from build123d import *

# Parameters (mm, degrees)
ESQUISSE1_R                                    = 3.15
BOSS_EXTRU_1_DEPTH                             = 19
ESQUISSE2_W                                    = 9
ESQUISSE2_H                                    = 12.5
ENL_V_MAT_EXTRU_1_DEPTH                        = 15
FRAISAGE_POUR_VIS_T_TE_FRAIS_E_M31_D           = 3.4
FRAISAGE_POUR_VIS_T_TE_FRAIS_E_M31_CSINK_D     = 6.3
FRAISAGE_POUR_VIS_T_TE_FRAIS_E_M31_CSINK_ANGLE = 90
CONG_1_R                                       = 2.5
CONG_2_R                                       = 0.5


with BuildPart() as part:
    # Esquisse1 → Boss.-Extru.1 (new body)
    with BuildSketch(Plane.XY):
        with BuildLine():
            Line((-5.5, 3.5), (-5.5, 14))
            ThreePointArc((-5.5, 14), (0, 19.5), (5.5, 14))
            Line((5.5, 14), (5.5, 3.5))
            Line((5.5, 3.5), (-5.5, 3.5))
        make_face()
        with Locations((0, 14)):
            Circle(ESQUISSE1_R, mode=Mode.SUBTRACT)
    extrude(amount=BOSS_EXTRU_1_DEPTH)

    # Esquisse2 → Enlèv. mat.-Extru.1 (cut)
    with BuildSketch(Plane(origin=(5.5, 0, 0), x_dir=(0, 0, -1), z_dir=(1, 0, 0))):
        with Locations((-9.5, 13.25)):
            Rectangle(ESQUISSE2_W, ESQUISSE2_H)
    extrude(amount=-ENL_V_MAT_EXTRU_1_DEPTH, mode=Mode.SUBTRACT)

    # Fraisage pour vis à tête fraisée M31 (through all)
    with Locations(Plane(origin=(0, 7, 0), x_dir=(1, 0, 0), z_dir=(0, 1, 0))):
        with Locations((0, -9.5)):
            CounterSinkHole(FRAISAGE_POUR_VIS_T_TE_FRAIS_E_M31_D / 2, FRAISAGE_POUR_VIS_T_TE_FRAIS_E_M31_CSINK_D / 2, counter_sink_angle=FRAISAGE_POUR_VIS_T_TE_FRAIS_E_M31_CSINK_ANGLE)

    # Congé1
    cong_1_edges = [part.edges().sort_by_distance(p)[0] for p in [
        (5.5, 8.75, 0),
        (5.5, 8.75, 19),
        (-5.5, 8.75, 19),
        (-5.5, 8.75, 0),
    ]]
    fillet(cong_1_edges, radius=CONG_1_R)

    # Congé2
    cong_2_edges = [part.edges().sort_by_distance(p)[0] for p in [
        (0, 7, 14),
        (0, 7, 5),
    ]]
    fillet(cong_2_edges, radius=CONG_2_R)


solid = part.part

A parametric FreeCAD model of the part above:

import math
import FreeCAD as App
import Part
import Sketcher


def edges_at(feature, points):
    """Names of the edges that pass closest to the given points."""
    edges = feature.Shape.Edges
    near = lambda p: min(range(len(edges)), key=lambda i: edges[i].distToShape(Part.Vertex(*p))[0])
    return sorted({f"Edge{near(p) + 1}" for p in points})


def add_polygon(sketch, points):
    """Adds a closed chain of lines whose ends are joined by coincident constraints."""
    first, n = sketch.GeometryCount, len(points)
    for a, b in zip(points, points[1:] + points[:1]):
        sketch.addGeometry(Part.LineSegment(App.Vector(*a, 0), App.Vector(*b, 0)), False)
    for i in range(n):
        sketch.addConstraint(Sketcher.Constraint("Coincident", first + i, 2, first + (i + 1) % n, 1))

doc = App.newDocument("Part")
body = doc.addObject("PartDesign::Body", "Body")

sketch1 = body.newObject("Sketcher::SketchObject", "Sketch")
sketch1.AttachmentSupport = (doc.getObject("XY_Plane"), [""])
sketch1.MapMode = "FlatFace"
sketch1.addGeometry([
    Part.LineSegment(App.Vector(-5.5, 14, 0), App.Vector(-5.5, 3.5, 0)),
    Part.LineSegment(App.Vector(-5.5, 3.5, 0), App.Vector(5.5, 3.5, 0)),
    Part.LineSegment(App.Vector(5.5, 3.5, 0), App.Vector(5.5, 14, 0)),
    Part.ArcOfCircle(Part.Circle(App.Vector(0, 14, 0), App.Vector(0, 0, 1), 5.5), math.radians(0), math.radians(180)),
    Part.Circle(App.Vector(0, 14, 0), App.Vector(0, 0, 1), 3.1),
], False)
sketch1.addConstraint([
    Sketcher.Constraint("Coincident", 0, 2, 1, 1),
    Sketcher.Constraint("Coincident", 1, 2, 2, 1),
    Sketcher.Constraint("Tangent", 2, 2, 3, 1),
    Sketcher.Constraint("Tangent", 3, 2, 0, 1),
    Sketcher.Constraint("Vertical", 0),
    Sketcher.Constraint("Horizontal", 1),
    Sketcher.Constraint("Vertical", 2),
    Sketcher.Constraint("Coincident", 4, 3, 3, 3),
    Sketcher.Constraint("PointOnObject", 3, 3, -2),
    Sketcher.Constraint("Diameter", 4, 6.3),
    Sketcher.Constraint("Radius", 3, 5.5),
    Sketcher.Constraint("DistanceY", 0, 2, 0, 1, 10.5),
    Sketcher.Constraint("DistanceY", -1, 1, 3, 3, 14.0),
])
pad1 = body.newObject("PartDesign::Pad", "Pad")
pad1.Profile = sketch1
pad1.Length = 19

sketch2 = body.newObject("Sketcher::SketchObject", "Sketch001")
sketch2.AttachmentSupport = (doc.getObject("YZ_Plane"), [""])
sketch2.MapMode = "FlatFace"
sketch2.AttachmentOffset = App.Placement(App.Vector(0, 0, 5.5), App.Rotation())
add_polygon(sketch2, [(20, 14), (7, 14), (7, 5), (20, 5)])
sketch2.addConstraint([
    Sketcher.Constraint("Horizontal", 0),
    Sketcher.Constraint("Vertical", 1),
    Sketcher.Constraint("Horizontal", 2),
    Sketcher.Constraint("Vertical", 3),
    Sketcher.Constraint("DistanceY", 1, 2, 1, 1, 9.0),
    Sketcher.Constraint("DistanceX", 0, 2, 0, 1, 12.5),
    Sketcher.Constraint("DistanceX", -1, 1, 0, 2, 7.0),
    Sketcher.Constraint("DistanceY", -1, 1, 0, 2, 14.0),
])
pocket1 = body.newObject("PartDesign::Pocket", "Pocket")
pocket1.Profile = sketch2
pocket1.Length = 15

sketch3 = body.newObject("Sketcher::SketchObject", "Sketch002")
sketch3.AttachmentSupport = (doc.getObject("XZ_Plane"), [""])
sketch3.MapMode = "FlatFace"
sketch3.AttachmentOffset = App.Placement(App.Vector(0, 0, -7), App.Rotation())
sketch3.addGeometry(Part.Circle(App.Vector(0, 9.5, 0), App.Vector(0, 0, 1), 1.7), False)
sketch3.addConstraint([
    Sketcher.Constraint("PointOnObject", 0, 3, -2),
    Sketcher.Constraint("Diameter", 0, 3.4),
    Sketcher.Constraint("DistanceY", -1, 1, 0, 3, 9.5),
])
doc.recompute()
hole = body.newObject("PartDesign::Hole", "Hole")
hole.Profile = sketch3
hole.ThreadType = "None"
hole.Diameter = 3.4
hole.DepthType = "ThroughAll"
hole.HoleCutType = "Countersink"
hole.HoleCutDiameter = 6.3
hole.HoleCutCountersinkAngle = 90
hole.Reversed = True
doc.recompute()

fillet = body.newObject("PartDesign::Fillet", "Fillet")
fillet.Base = (hole, edges_at(hole, [
    (5.5, 8.75, 0),
    (5.5, 8.75, 19),
    (-5.5, 8.75, 19),
    (-5.5, 8.75, 0),
]))
fillet.Radius = 2.5
doc.recompute()

fillet2 = body.newObject("PartDesign::Fillet", "Fillet001")
fillet2.Base = (fillet, edges_at(fillet, [(0, 7, 14), (0, 7, 5)]))
fillet2.Radius = 0.5

doc.recompute()
